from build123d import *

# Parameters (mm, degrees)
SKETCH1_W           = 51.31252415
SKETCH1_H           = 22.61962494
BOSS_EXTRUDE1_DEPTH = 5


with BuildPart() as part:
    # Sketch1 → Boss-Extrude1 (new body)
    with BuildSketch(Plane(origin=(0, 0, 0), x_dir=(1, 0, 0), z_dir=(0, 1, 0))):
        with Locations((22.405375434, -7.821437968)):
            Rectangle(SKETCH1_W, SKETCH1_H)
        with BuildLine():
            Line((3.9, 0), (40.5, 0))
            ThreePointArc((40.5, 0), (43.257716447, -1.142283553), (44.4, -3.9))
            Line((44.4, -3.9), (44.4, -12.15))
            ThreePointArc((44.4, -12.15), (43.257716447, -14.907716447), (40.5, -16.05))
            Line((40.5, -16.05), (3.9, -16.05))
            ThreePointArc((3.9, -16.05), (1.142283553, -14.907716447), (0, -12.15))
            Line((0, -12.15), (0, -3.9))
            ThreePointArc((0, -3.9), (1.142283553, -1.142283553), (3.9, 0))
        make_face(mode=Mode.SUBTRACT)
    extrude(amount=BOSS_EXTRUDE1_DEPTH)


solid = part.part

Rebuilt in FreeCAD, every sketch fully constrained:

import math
import FreeCAD as App
import Part
import Sketcher
from FreeCAD import Vector
Q = App.Units.Quantity

doc = App.newDocument("Part")
body = doc.addObject("PartDesign::Body", "Body")

# Sketch on XZ plane
sketch1 = body.newObject("Sketcher::SketchObject", "Sketch")
sketch1.AttachmentSupport = (doc.getObject("XZ_Plane"), [""])
sketch1.MapMode = "FlatFace"
sketch1.addGeometry(Part.LineSegment(Vector(-3.250887, -3.488375, 0), Vector(-3.250887, 19.13125, 0)), False)
sketch1.addGeometry(Part.LineSegment(Vector(-3.250887, 19.13125, 0), Vector(48.061638, 19.13125, 0)), False)
sketch1.addGeometry(Part.LineSegment(Vector(48.061638, 19.13125, 0), Vector(48.061638, -3.488375, 0)), False)
sketch1.addGeometry(Part.LineSegment(Vector(48.061638, -3.488375, 0), Vector(-3.250887, -3.488375, 0)), False)
sketch1.addGeometry(Part.ArcOfCircle(Part.Circle(Vector(3.9, 3.9, 0), Vector(0, 0, 1), 3.9), math.radians(180), math.radians(270)), False)
sketch1.addGeometry(Part.LineSegment(Vector(3.9, 0, 0), Vector(40.5, 0, 0)), False)
sketch1.addGeometry(Part.ArcOfCircle(Part.Circle(Vector(40.5, 3.9, 0), Vector(0, 0, 1), 3.9), math.radians(-90), math.radians(0)), False)
sketch1.addGeometry(Part.LineSegment(Vector(44.4, 3.9, 0), Vector(44.4, 12.15, 0)), False)
sketch1.addGeometry(Part.ArcOfCircle(Part.Circle(Vector(40.5, 12.15, 0), Vector(0, 0, 1), 3.9), math.radians(0), math.radians(90)), False)
sketch1.addGeometry(Part.LineSegment(Vector(40.5, 16.05, 0), Vector(3.9, 16.05, 0)), False)
sketch1.addGeometry(Part.ArcOfCircle(Part.Circle(Vector(3.9, 12.15, 0), Vector(0, 0, 1), 3.9), math.radians(90), math.radians(180)), False)
sketch1.addGeometry(Part.LineSegment(Vector(0, 12.15, 0), Vector(0, 3.9, 0)), False)
sketch1.addConstraint(Sketcher.Constraint("Coincident", 0, 2, 1, 1))
sketch1.addConstraint(Sketcher.Constraint("Coincident", 1, 2, 2, 1))
sketch1.addConstraint(Sketcher.Constraint("Coincident", 2, 2, 3, 1))
sketch1.addConstraint(Sketcher.Constraint("Coincident", 3, 2, 0, 1))
sketch1.addConstraint(Sketcher.Constraint("Tangent", 4, 2, 5, 1))
sketch1.addConstraint(Sketcher.Constraint("Tangent", 5, 2, 6, 1))
sketch1.addConstraint(Sketcher.Constraint("Tangent", 6, 2, 7, 1))
sketch1.addConstraint(Sketcher.Constraint("Tangent", 7, 2, 8, 1))
sketch1.addConstraint(Sketcher.Constraint("Tangent", 8, 2, 9, 1))
sketch1.addConstraint(Sketcher.Constraint("Tangent", 9, 2, 10, 1))
sketch1.addConstraint(Sketcher.Constraint("Tangent", 10, 2, 11, 1))
sketch1.addConstraint(Sketcher.Constraint("Tangent", 11, 2, 4, 1))
sketch1.addConstraint(Sketcher.Constraint("Vertical", 0))
sketch1.addConstraint(Sketcher.Constraint("Horizontal", 1))
sketch1.addConstraint(Sketcher.Constraint("Vertical", 2))
sketch1.addConstraint(Sketcher.Constraint("Horizontal", 3))
sketch1.addConstraint(Sketcher.Constraint("Horizontal", 5))
sketch1.addConstraint(Sketcher.Constraint("Vertical", 7))
sketch1.addConstraint(Sketcher.Constraint("Horizontal", 9))
sketch1.addConstraint(Sketcher.Constraint("Vertical", 11))
sketch1.addConstraint(Sketcher.Constraint("Equal", 4, 6))
sketch1.addConstraint(Sketcher.Constraint("Equal", 6, 8))
sketch1.addConstraint(Sketcher.Constraint("Equal", 8, 10))
sketch1.addConstraint(Sketcher.Constraint("PointOnObject", 4, 2, -1))
sketch1.addConstraint(Sketcher.Constraint("PointOnObject", 10, 2, -2))
sketch1.addConstraint(Sketcher.Constraint("Radius", 4, Q("3.9 mm")))
sketch1.addConstraint(Sketcher.Constraint("DistanceX", 5, 1, 5, 2, Q("36.6 mm")))
sketch1.addConstraint(Sketcher.Constraint("DistanceY", 7, 1, 7, 2, Q("8.25 mm")))
sketch1.addConstraint(Sketcher.Constraint("DistanceX", 1, 1, 1, 2, Q("51.312524 mm")))
sketch1.addConstraint(Sketcher.Constraint("DistanceY", 0, 1, 0, 2, Q("22.619625 mm")))
sketch1.addConstraint(Sketcher.Constraint("DistanceY", -1, 1, 0, 2, Q("19.13125 mm")))
sketch1.addConstraint(Sketcher.Constraint("DistanceX", 0, 2, -1, 1, Q("3.250887 mm")))
pad1 = body.newObject("PartDesign::Pad", "Pad")
pad1.Profile = sketch1
pad1.Length = 5
pad1.Reversed = True

doc.recompute()
